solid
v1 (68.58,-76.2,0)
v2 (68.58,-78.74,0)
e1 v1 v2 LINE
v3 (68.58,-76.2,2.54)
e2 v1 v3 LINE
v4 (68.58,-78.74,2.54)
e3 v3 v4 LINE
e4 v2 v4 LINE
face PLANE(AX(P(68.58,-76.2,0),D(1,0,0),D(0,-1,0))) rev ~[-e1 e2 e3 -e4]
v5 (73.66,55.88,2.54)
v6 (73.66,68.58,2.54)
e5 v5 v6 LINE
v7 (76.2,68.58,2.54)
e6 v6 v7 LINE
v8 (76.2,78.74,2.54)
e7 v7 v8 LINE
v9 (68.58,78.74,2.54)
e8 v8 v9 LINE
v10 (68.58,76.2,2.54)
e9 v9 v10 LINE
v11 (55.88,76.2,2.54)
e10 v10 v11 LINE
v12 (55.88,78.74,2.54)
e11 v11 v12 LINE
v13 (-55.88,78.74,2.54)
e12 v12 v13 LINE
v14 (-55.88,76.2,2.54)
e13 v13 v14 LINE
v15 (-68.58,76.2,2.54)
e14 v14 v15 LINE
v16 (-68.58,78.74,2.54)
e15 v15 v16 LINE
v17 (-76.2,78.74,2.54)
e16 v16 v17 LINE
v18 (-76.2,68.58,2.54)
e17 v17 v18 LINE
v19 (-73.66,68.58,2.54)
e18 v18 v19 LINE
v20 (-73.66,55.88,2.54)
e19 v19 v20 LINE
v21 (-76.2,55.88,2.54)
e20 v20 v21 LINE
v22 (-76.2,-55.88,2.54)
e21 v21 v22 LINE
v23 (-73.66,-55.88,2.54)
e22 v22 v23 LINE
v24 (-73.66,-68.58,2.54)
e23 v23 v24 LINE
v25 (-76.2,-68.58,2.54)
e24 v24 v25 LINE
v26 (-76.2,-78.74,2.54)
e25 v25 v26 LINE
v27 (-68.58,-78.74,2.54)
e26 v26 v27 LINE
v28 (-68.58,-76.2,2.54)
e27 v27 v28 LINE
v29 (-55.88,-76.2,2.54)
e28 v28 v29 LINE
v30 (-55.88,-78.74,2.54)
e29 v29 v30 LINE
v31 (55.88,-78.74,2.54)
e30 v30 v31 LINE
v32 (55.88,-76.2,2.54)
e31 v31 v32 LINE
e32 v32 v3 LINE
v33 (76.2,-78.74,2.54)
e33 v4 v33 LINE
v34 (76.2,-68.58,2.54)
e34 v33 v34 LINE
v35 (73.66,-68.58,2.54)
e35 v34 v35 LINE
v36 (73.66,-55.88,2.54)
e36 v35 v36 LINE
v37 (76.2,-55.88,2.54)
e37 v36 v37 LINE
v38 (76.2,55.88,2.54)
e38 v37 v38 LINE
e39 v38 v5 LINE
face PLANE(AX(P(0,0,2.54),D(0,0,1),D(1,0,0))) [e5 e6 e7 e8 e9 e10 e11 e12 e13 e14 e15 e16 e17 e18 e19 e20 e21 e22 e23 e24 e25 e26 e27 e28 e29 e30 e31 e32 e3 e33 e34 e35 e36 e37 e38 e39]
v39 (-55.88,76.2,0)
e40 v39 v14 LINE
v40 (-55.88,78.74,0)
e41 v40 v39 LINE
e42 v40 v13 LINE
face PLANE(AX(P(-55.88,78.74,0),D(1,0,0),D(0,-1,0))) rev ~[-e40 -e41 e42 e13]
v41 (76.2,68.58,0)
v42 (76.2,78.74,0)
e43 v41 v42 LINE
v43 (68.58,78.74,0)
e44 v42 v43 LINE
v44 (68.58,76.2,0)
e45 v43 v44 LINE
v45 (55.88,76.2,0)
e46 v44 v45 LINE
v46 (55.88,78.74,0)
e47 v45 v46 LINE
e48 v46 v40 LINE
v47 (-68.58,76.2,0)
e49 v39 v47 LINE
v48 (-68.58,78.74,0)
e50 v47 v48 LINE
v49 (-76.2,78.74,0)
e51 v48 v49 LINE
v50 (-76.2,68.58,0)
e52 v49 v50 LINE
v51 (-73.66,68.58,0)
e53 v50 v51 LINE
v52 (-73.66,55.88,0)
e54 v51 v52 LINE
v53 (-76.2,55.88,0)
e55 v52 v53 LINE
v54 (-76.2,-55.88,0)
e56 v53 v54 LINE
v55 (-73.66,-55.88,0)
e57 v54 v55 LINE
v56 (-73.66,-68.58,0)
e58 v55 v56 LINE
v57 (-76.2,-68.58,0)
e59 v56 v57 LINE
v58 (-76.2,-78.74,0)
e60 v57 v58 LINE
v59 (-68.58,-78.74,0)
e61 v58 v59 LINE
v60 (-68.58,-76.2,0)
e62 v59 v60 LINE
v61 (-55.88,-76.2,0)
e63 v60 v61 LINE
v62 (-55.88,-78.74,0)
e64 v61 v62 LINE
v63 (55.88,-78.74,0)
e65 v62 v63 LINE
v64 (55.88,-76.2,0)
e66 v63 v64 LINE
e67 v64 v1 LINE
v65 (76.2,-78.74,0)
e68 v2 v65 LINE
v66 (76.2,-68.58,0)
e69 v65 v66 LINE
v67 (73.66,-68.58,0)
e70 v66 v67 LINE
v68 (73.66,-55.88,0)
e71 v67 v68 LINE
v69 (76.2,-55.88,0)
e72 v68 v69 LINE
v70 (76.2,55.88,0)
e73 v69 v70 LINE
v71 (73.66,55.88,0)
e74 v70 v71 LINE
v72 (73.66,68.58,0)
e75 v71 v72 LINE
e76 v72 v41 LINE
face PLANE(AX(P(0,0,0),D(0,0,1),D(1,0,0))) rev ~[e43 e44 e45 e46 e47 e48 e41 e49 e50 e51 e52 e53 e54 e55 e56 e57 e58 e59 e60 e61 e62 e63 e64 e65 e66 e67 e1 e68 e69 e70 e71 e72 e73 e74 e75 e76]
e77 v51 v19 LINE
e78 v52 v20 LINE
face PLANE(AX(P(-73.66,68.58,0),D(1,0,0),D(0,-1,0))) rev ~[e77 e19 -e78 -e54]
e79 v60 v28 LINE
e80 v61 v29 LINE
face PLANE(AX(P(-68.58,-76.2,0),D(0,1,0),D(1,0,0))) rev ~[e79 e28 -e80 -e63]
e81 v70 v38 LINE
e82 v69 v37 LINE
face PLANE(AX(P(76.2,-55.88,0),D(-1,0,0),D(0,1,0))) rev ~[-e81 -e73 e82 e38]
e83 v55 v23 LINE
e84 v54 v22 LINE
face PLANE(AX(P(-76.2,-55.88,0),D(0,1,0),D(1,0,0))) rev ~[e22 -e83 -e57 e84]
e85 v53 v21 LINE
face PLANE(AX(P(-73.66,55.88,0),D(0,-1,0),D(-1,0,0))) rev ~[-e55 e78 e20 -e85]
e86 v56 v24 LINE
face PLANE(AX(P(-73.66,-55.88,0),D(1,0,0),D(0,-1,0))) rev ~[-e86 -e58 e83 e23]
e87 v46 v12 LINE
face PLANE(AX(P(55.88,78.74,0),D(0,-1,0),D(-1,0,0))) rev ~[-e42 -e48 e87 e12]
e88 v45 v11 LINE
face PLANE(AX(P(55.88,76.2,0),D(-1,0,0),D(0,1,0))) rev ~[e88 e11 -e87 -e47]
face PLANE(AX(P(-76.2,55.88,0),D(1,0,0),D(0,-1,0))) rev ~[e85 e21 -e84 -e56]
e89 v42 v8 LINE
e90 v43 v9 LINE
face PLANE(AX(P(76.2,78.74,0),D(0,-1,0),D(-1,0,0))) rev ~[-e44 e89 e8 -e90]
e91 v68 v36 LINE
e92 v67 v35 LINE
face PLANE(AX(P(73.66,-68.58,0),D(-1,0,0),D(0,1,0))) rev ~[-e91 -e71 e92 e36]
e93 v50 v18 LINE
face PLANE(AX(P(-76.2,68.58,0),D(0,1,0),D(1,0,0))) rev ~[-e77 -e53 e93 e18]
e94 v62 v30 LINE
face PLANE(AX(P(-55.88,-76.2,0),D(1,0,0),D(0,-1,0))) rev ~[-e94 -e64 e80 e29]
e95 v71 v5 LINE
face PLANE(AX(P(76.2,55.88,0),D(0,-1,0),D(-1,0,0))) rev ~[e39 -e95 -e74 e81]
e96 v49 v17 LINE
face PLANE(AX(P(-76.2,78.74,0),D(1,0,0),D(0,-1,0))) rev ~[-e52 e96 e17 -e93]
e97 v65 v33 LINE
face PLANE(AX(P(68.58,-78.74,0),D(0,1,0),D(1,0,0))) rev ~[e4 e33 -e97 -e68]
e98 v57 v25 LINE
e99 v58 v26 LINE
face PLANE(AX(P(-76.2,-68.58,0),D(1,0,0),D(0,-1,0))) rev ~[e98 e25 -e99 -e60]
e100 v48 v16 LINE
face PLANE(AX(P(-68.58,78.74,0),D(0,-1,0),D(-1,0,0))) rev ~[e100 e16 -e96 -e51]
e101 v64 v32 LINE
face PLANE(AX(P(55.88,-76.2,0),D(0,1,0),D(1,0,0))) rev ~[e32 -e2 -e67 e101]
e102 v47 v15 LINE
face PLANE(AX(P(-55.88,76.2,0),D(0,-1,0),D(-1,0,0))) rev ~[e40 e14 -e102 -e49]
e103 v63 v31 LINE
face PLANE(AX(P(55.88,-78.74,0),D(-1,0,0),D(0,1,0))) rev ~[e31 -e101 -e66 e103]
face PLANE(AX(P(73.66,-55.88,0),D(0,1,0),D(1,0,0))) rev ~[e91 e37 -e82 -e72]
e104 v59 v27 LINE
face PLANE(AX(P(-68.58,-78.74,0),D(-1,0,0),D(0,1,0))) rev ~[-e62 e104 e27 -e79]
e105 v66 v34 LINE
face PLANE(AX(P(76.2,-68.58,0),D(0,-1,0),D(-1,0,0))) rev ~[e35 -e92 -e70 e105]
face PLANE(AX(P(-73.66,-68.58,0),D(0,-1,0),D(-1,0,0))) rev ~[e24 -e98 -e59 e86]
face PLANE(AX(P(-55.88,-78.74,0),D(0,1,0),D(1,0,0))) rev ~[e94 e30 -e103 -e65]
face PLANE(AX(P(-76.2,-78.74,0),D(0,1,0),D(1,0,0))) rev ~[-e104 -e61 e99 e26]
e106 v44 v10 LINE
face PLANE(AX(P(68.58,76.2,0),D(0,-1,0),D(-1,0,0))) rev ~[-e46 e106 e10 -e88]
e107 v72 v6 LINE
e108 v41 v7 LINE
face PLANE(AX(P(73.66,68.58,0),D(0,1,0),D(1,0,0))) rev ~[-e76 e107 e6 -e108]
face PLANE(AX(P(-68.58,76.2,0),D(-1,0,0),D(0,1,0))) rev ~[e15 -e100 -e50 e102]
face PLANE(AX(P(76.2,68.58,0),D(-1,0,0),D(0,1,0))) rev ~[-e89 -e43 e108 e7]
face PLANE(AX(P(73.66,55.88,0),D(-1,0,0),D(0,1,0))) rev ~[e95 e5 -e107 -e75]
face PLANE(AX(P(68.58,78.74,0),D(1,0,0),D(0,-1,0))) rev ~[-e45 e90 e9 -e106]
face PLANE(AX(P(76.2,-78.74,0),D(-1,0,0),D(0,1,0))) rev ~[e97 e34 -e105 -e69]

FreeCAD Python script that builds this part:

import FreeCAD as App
import Part
import Sketcher
Q = App.Units.Quantity

doc = App.newDocument("Part")
body = doc.addObject("PartDesign::Body", "Body")

sketch1 = body.newObject("Sketcher::SketchObject", "Sketch")
sketch1.AttachmentSupport = (doc.getObject("XY_Plane"), [""])
sketch1.MapMode = "FlatFace"
sketch1.addGeometry([
    Part.LineSegment(App.Vector(76.2, 68.6, 0), App.Vector(76.2, 78.7, 0)),
    Part.LineSegment(App.Vector(76.2, 78.7, 0), App.Vector(68.6, 78.7, 0)),
    Part.LineSegment(App.Vector(68.6, 78.7, 0), App.Vector(68.6, 76.2, 0)),
    Part.LineSegment(App.Vector(68.6, 76.2, 0), App.Vector(55.9, 76.2, 0)),
    Part.LineSegment(App.Vector(55.9, 76.2, 0), App.Vector(55.9, 78.7, 0)),
    Part.LineSegment(App.Vector(55.9, 78.7, 0), App.Vector(-55.9, 78.7, 0)),
    Part.LineSegment(App.Vector(-55.9, 78.7, 0), App.Vector(-55.9, 76.2, 0)),
    Part.LineSegment(App.Vector(-55.9, 76.2, 0), App.Vector(-68.6, 76.2, 0)),
    Part.LineSegment(App.Vector(-68.6, 76.2, 0), App.Vector(-68.6, 78.7, 0)),
    Part.LineSegment(App.Vector(-68.6, 78.7, 0), App.Vector(-76.2, 78.7, 0)),
    Part.LineSegment(App.Vector(-76.2, 78.7, 0), App.Vector(-76.2, 68.6, 0)),
    Part.LineSegment(App.Vector(-76.2, 68.6, 0), App.Vector(-73.7, 68.6, 0)),
    Part.LineSegment(App.Vector(-73.7, 68.6, 0), App.Vector(-73.7, 55.9, 0)),
    Part.LineSegment(App.Vector(-73.7, 55.9, 0), App.Vector(-76.2, 55.9, 0)),
    Part.LineSegment(App.Vector(-76.2, 55.9, 0), App.Vector(-76.2, -55.9, 0)),
    Part.LineSegment(App.Vector(-76.2, -55.9, 0), App.Vector(-73.7, -55.9, 0)),
    Part.LineSegment(App.Vector(-73.7, -55.9, 0), App.Vector(-73.7, -68.6, 0)),
    Part.LineSegment(App.Vector(-73.7, -68.6, 0), App.Vector(-76.2, -68.6, 0)),
    Part.LineSegment(App.Vector(-76.2, -68.6, 0), App.Vector(-76.2, -78.7, 0)),
    Part.LineSegment(App.Vector(-76.2, -78.7, 0), App.Vector(-68.6, -78.7, 0)),
    Part.LineSegment(App.Vector(-68.6, -78.7, 0), App.Vector(-68.6, -76.2, 0)),
    Part.LineSegment(App.Vector(-68.6, -76.2, 0), App.Vector(-55.9, -76.2, 0)),
    Part.LineSegment(App.Vector(-55.9, -76.2, 0), App.Vector(-55.9, -78.7, 0)),
    Part.LineSegment(App.Vector(-55.9, -78.7, 0), App.Vector(55.9, -78.7, 0)),
    Part.LineSegment(App.Vector(55.9, -78.7, 0), App.Vector(55.9, -76.2, 0)),
    Part.LineSegment(App.Vector(55.9, -76.2, 0), App.Vector(68.6, -76.2, 0)),
    Part.LineSegment(App.Vector(68.6, -76.2, 0), App.Vector(68.6, -78.7, 0)),
    Part.LineSegment(App.Vector(68.6, -78.7, 0), App.Vector(76.2, -78.7, 0)),
    Part.LineSegment(App.Vector(76.2, -78.7, 0), App.Vector(76.2, -68.6, 0)),
    Part.LineSegment(App.Vector(76.2, -68.6, 0), App.Vector(73.7, -68.6, 0)),
    Part.LineSegment(App.Vector(73.7, -68.6, 0), App.Vector(73.7, -55.9, 0)),
    Part.LineSegment(App.Vector(73.7, -55.9, 0), App.Vector(76.2, -55.9, 0)),
    Part.LineSegment(App.Vector(76.2, -55.9, 0), App.Vector(76.2, 55.9, 0)),
    Part.LineSegment(App.Vector(76.2, 55.9, 0), App.Vector(73.7, 55.9, 0)),
    Part.LineSegment(App.Vector(73.7, 55.9, 0), App.Vector(73.7, 68.6, 0)),
    Part.LineSegment(App.Vector(73.7, 68.6, 0), App.Vector(76.2, 68.6, 0)),
], False)
sketch1.addConstraint([
    Sketcher.Constraint("Coincident", 0, 2, 1, 1),
    Sketcher.Constraint("Coincident", 1, 2, 2, 1),
    Sketcher.Constraint("Coincident", 2, 2, 3, 1),
    Sketcher.Constraint("Coincident", 3, 2, 4, 1),
    Sketcher.Constraint("Coincident", 4, 2, 5, 1),
    Sketcher.Constraint("Coincident", 5, 2, 6, 1),
    Sketcher.Constraint("Coincident", 6, 2, 7, 1),
    Sketcher.Constraint("Coincident", 7, 2, 8, 1),
    Sketcher.Constraint("Coincident", 8, 2, 9, 1),
    Sketcher.Constraint("Coincident", 9, 2, 10, 1),
    Sketcher.Constraint("Coincident", 10, 2, 11, 1),
    Sketcher.Constraint("Coincident", 11, 2, 12, 1),
    Sketcher.Constraint("Coincident", 12, 2, 13, 1),
    Sketcher.Constraint("Coincident", 13, 2, 14, 1),
    Sketcher.Constraint("Coincident", 14, 2, 15, 1),
    Sketcher.Constraint("Coincident", 15, 2, 16, 1),
    Sketcher.Constraint("Coincident", 16, 2, 17, 1),
    Sketcher.Constraint("Coincident", 17, 2, 18, 1),
    Sketcher.Constraint("Coincident", 18, 2, 19, 1),
    Sketcher.Constraint("Coincident", 19, 2, 20, 1),
    Sketcher.Constraint("Coincident", 20, 2, 21, 1),
    Sketcher.Constraint("Coincident", 21, 2, 22, 1),
    Sketcher.Constraint("Coincident", 22, 2, 23, 1),
    Sketcher.Constraint("Coincident", 23, 2, 24, 1),
    Sketcher.Constraint("Coincident", 24, 2, 25, 1),
    Sketcher.Constraint("Coincident", 25, 2, 26, 1),
    Sketcher.Constraint("Coincident", 26, 2, 27, 1),
    Sketcher.Constraint("Coincident", 27, 2, 28, 1),
    Sketcher.Constraint("Coincident", 28, 2, 29, 1),
    Sketcher.Constraint("Coincident", 29, 2, 30, 1),
    Sketcher.Constraint("Coincident", 30, 2, 31, 1),
    Sketcher.Constraint("Coincident", 31, 2, 32, 1),
    Sketcher.Constraint("Coincident", 32, 2, 33, 1),
    Sketcher.Constraint("Coincident", 33, 2, 34, 1),
    Sketcher.Constraint("Coincident", 34, 2, 35, 1),
    Sketcher.Constraint("Coincident", 35, 2, 0, 1),
    Sketcher.Constraint("Vertical", 0),
    Sketcher.Constraint("Horizontal", 1),
    Sketcher.Constraint("Vertical", 2),
    Sketcher.Constraint("Horizontal", 3),
    Sketcher.Constraint("Vertical", 4),
    Sketcher.Constraint("Horizontal", 5),
    Sketcher.Constraint("Vertical", 6),
    Sketcher.Constraint("Horizontal", 7),
    Sketcher.Constraint("Vertical", 8),
    Sketcher.Constraint("Horizontal", 9),
    Sketcher.Constraint("Vertical", 10),
    Sketcher.Constraint("Horizontal", 11),
    Sketcher.Constraint("Vertical", 12),
    Sketcher.Constraint("Horizontal", 13),
    Sketcher.Constraint("Vertical", 14),
    Sketcher.Constraint("Horizontal", 15),
    Sketcher.Constraint("Vertical", 16),
    Sketcher.Constraint("Horizontal", 17),
    Sketcher.Constraint("Vertical", 18),
    Sketcher.Constraint("Horizontal", 19),
    Sketcher.Constraint("Vertical", 20),
    Sketcher.Constraint("Horizontal", 21),
    Sketcher.Constraint("Vertical", 22),
    Sketcher.Constraint("Horizontal", 23),
    Sketcher.Constraint("Vertical", 24),
    Sketcher.Constraint("Horizontal", 25),
    Sketcher.Constraint("Vertical", 26),
    Sketcher.Constraint("Horizontal", 27),
    Sketcher.Constraint("Vertical", 28),
    Sketcher.Constraint("Horizontal", 29),
    Sketcher.Constraint("Vertical", 30),
    Sketcher.Constraint("Horizontal", 31),
    Sketcher.Constraint("Vertical", 32),
    Sketcher.Constraint("Horizontal", 33),
    Sketcher.Constraint("Vertical", 34),
    Sketcher.Constraint("Horizontal", 35),
    Sketcher.Constraint("Symmetric", 0, 2, 18, 2, -1, 1),
    Sketcher.Constraint("Symmetric", 2, 2, 20, 2, -1, 1),
    Sketcher.Constraint("Symmetric", 4, 2, 22, 2, -1, 1),
    Sketcher.Constraint("Symmetric", 6, 2, 24, 2, -1, 1),
    Sketcher.Constraint("Symmetric", 8, 2, 26, 2, -1, 1),
    Sketcher.Constraint("Symmetric", 10, 2, 28, 2, -1, 1),
    Sketcher.Constraint("Symmetric", 12, 2, 30, 2, -1, 1),
    Sketcher.Constraint("Symmetric", 14, 2, 32, 2, -1, 1),
    Sketcher.Constraint("Symmetric", 16, 2, 34, 2, -1, 1),
    Sketcher.Constraint("Symmetric", 3, 2, 6, 2, -2),
    Sketcher.Constraint("Symmetric", 1, 2, 8, 2, -2),
    Sketcher.Constraint("Symmetric", 17, 2, 28, 2, -2),
    Sketcher.Constraint("Symmetric", 15, 2, 30, 2, -2),
    Sketcher.Constraint("Horizontal", 1, 2, 4, 2),
    Sketcher.Constraint("Vertical", 10, 2, 13, 2),
    Sketcher.Constraint("Equal", 35, 2),
    Sketcher.Constraint("Equal", 25, 12),
    Sketcher.Constraint("Equal", 23, 14),
    Sketcher.Constraint("DistanceX", 1, 2, 1, 1, Q("0.3 in")),
    Sketcher.Constraint("DistanceX", 3, 2, 3, 1, Q("0.5 in")),
    Sketcher.Constraint("DistanceX", 5, 2, 5, 1, Q("4.4 in")),
    Sketcher.Constraint("DistanceX", 11, 1, 11, 2, Q("0.1 in")),
    Sketcher.Constraint("DistanceY", 0, 1, 0, 2, Q("0.4 in")),
])
pad1 = body.newObject("PartDesign::Pad", "Pad")
pad1.Profile = sketch1
pad1.Length = Q("0.1 in")

doc.recompute()
